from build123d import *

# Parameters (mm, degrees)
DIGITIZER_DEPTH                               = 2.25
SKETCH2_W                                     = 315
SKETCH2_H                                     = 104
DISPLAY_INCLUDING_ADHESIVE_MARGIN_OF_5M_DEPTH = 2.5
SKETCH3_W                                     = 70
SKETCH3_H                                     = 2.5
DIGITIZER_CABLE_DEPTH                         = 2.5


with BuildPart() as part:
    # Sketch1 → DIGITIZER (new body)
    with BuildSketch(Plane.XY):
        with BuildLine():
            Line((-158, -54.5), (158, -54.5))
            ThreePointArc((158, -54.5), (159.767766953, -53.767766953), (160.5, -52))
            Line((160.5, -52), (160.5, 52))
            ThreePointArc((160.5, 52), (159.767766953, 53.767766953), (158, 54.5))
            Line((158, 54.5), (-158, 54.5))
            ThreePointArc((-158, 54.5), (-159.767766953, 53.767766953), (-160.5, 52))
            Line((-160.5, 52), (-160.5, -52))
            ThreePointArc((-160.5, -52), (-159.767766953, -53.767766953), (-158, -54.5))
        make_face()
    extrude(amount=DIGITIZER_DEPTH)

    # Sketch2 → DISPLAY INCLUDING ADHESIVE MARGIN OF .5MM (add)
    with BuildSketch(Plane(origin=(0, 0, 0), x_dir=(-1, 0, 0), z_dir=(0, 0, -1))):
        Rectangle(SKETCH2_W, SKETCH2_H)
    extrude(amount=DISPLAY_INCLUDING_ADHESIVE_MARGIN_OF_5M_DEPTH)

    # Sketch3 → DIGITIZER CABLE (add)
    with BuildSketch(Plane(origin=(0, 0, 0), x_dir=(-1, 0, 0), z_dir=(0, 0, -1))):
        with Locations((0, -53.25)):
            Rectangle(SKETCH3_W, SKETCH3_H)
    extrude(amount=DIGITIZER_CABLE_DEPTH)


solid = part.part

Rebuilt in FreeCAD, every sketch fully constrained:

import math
import FreeCAD as App
import Part
import Sketcher


def add_polygon(sketch, points):
    """Adds a closed chain of lines whose ends are joined by coincident constraints."""
    first, n = sketch.GeometryCount, len(points)
    for a, b in zip(points, points[1:] + points[:1]):
        sketch.addGeometry(Part.LineSegment(App.Vector(*a, 0), App.Vector(*b, 0)), False)
    for i in range(n):
        sketch.addConstraint(Sketcher.Constraint("Coincident", first + i, 2, first + (i + 1) % n, 1))

doc = App.newDocument("Part")
body = doc.addObject("PartDesign::Body", "Body")

sketch1 = body.newObject("Sketcher::SketchObject", "Sketch")
sketch1.AttachmentSupport = (doc.getObject("XY_Plane"), [""])
sketch1.MapMode = "FlatFace"
sketch1.addGeometry([
    Part.LineSegment(App.Vector(-158, -54.5, 0), App.Vector(158, -54.5, 0)),
    Part.ArcOfCircle(Part.Circle(App.Vector(158, -52, 0), App.Vector(0, 0, 1), 2.5), math.radians(-90), math.radians(0)),
    Part.LineSegment(App.Vector(160.5, -52, 0), App.Vector(160.5, 52, 0)),
    Part.ArcOfCircle(Part.Circle(App.Vector(158, 52, 0), App.Vector(0, 0, 1), 2.5), math.radians(0), math.radians(90)),
    Part.LineSegment(App.Vector(158, 54.5, 0), App.Vector(-158, 54.5, 0)),
    Part.ArcOfCircle(Part.Circle(App.Vector(-158, 52, 0), App.Vector(0, 0, 1), 2.5), math.radians(90), math.radians(180)),
    Part.LineSegment(App.Vector(-160.5, 52, 0), App.Vector(-160.5, -52, 0)),
    Part.ArcOfCircle(Part.Circle(App.Vector(-158, -52, 0), App.Vector(0, 0, 1), 2.5), math.radians(180), math.radians(270)),
], False)
sketch1.addConstraint([
    Sketcher.Constraint("Tangent", 0, 2, 1, 1),
    Sketcher.Constraint("Tangent", 1, 2, 2, 1),
    Sketcher.Constraint("Tangent", 2, 2, 3, 1),
    Sketcher.Constraint("Tangent", 3, 2, 4, 1),
    Sketcher.Constraint("Tangent", 4, 2, 5, 1),
    Sketcher.Constraint("Tangent", 5, 2, 6, 1),
    Sketcher.Constraint("Tangent", 6, 2, 7, 1),
    Sketcher.Constraint("Tangent", 7, 2, 0, 1),
    Sketcher.Constraint("Horizontal", 0),
    Sketcher.Constraint("Vertical", 2),
    Sketcher.Constraint("Horizontal", 4),
    Sketcher.Constraint("Vertical", 6),
    Sketcher.Constraint("Equal", 1, 3),
    Sketcher.Constraint("Equal", 3, 5),
    Sketcher.Constraint("Equal", 5, 7),
    Sketcher.Constraint("Symmetric", 1, 3, 5, 3, -1, 1),
    Sketcher.Constraint("Radius", 1, 2.5),
    Sketcher.Constraint("DistanceX", 0, 1, 0, 2, 316.0),
    Sketcher.Constraint("DistanceY", 2, 1, 2, 2, 104.0),
])
pad1 = body.newObject("PartDesign::Pad", "Pad")
pad1.Profile = sketch1
pad1.Length = 2.25

sketch2 = body.newObject("Sketcher::SketchObject", "Sketch001")
sketch2.AttachmentSupport = (doc.getObject("XY_Plane"), [""])
sketch2.MapMode = "FlatFace"
add_polygon(sketch2, [(158, 52), (158, -52), (-158, -52), (-158, 52)])
sketch2.addConstraint([
    Sketcher.Constraint("Vertical", 0),
    Sketcher.Constraint("Horizontal", 1),
    Sketcher.Constraint("Vertical", 2),
    Sketcher.Constraint("Horizontal", 3),
    Sketcher.Constraint("Symmetric", 0, 2, 2, 2, -1, 1),
    Sketcher.Constraint("DistanceX", 1, 2, 1, 1, 315.0),
    Sketcher.Constraint("DistanceY", 0, 2, 0, 1, 104.0),
])
pad2 = body.newObject("PartDesign::Pad", "Pad001")
pad2.Profile = sketch2
pad2.Length = 2.5
pad2.Reversed = True

sketch3 = body.newObject("Sketcher::SketchObject", "Sketch002")
sketch3.AttachmentSupport = (doc.getObject("XY_Plane"), [""])
sketch3.MapMode = "FlatFace"
add_polygon(sketch3, [(35, -52), (35, -54.5), (-35, -54.5), (-35, -52)])
sketch3.addConstraint([
    Sketcher.Constraint("Vertical", 0),
    Sketcher.Constraint("Horizontal", 1),
    Sketcher.Constraint("Vertical", 2),
    Sketcher.Constraint("Horizontal", 3),
    Sketcher.Constraint("DistanceX", 1, 2, 1, 1, 70.0),
    Sketcher.Constraint("DistanceY", 0, 2, 0, 1, 2.5),
    Sketcher.Constraint("DistanceX", -1, 1, 0, 2, 35.0),
    Sketcher.Constraint("DistanceY", 2, 2, -1, 1, 52.0),
])
pad3 = body.newObject("PartDesign::Pad", "Pad002")
pad3.Profile = sketch3
pad3.Length = 2.5
pad3.Reversed = True

doc.recompute()
